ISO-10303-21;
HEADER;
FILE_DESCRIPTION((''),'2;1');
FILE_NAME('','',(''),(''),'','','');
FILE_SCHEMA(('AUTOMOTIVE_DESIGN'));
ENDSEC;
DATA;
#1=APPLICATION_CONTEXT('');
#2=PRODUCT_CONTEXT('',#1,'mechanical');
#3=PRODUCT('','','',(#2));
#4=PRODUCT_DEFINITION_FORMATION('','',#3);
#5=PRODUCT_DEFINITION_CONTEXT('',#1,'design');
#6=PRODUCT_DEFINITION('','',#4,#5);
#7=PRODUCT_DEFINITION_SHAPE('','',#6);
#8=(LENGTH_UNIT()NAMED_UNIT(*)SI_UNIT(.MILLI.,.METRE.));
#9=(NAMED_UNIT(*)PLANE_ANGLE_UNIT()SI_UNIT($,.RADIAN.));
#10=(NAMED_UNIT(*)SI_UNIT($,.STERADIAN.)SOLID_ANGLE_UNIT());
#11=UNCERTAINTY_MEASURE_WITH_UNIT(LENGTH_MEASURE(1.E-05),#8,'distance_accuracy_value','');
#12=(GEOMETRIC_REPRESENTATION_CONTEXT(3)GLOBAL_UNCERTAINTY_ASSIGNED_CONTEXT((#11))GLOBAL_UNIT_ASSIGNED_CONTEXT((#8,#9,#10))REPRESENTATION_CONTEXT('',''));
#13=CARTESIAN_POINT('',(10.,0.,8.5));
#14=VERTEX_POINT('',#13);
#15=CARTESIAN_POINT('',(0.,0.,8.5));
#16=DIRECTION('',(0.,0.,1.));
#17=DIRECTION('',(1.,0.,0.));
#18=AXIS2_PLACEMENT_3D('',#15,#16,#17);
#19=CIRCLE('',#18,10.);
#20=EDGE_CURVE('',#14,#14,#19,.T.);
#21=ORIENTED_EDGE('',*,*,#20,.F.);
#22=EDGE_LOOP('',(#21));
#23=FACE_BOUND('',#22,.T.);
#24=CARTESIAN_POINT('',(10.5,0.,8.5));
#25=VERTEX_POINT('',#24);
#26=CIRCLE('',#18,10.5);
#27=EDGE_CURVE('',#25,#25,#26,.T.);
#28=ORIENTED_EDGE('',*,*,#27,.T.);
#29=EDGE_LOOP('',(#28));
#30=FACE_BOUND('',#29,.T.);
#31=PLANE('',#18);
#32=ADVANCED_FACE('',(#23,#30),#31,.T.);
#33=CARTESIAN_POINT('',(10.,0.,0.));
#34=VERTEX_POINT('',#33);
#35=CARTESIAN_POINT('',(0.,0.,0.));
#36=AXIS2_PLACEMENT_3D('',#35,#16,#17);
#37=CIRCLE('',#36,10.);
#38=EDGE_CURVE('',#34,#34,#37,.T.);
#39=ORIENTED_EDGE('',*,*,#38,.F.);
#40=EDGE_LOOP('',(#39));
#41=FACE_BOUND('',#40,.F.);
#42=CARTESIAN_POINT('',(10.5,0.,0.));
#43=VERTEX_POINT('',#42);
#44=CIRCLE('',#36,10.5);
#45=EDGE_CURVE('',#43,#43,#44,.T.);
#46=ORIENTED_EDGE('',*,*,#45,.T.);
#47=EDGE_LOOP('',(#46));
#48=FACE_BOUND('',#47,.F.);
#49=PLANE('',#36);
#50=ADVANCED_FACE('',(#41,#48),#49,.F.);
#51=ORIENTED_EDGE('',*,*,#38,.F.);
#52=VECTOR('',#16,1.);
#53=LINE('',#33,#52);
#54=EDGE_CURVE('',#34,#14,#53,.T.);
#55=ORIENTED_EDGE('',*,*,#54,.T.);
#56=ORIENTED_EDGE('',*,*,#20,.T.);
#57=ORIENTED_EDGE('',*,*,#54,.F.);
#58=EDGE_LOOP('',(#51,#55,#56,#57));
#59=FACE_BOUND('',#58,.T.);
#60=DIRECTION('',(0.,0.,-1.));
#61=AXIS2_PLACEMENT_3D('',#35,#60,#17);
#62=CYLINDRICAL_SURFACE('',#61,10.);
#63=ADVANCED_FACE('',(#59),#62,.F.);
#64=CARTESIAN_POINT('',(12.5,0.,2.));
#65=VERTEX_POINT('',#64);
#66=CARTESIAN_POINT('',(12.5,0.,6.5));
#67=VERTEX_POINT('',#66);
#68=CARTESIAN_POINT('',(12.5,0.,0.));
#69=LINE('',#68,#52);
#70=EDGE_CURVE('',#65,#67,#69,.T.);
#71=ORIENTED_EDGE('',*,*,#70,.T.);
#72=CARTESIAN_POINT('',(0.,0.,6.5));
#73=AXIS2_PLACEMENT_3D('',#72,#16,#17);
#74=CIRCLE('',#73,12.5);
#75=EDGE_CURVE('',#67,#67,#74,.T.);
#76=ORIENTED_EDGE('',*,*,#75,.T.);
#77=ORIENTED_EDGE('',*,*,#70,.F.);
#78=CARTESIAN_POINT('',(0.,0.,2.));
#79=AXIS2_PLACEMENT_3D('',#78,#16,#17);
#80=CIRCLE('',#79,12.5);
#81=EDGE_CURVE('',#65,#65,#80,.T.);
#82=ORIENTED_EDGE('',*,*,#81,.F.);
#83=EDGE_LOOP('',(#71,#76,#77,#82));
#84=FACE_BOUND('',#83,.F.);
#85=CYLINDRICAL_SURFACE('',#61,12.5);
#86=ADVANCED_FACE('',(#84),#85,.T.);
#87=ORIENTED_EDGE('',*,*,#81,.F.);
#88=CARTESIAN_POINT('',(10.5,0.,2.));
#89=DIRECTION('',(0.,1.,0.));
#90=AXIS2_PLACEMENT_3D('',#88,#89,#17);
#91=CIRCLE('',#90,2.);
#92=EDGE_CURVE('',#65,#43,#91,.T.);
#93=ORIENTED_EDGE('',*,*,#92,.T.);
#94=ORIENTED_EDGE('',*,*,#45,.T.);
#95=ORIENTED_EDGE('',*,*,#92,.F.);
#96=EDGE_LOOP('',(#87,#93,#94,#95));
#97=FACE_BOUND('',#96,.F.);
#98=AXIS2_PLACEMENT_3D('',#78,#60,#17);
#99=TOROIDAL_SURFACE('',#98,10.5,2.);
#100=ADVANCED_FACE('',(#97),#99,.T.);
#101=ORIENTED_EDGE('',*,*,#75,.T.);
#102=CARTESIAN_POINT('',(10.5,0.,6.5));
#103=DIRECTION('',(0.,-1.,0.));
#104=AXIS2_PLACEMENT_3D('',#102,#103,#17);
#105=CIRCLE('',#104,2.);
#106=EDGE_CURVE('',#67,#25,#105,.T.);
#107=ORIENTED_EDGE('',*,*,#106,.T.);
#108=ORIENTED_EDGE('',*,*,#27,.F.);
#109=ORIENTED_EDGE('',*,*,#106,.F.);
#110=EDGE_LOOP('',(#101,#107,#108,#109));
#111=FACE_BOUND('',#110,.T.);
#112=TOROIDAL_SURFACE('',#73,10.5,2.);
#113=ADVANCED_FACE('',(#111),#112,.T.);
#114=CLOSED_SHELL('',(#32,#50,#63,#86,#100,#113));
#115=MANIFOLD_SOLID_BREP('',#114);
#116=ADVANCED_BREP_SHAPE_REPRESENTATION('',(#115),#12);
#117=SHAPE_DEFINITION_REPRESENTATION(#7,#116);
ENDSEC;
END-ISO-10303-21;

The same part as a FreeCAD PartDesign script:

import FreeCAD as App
import Part
import Sketcher

V = App.Vector
Q = App.Units.Quantity


def edges_at(feature, points):
    """Names of the edges that pass closest to the given points."""
    edges = feature.Shape.Edges
    near = lambda p: min(range(len(edges)), key=lambda i: edges[i].distToShape(Part.Vertex(*p))[0])
    return sorted({f"Edge{near(p) + 1}" for p in points})

doc = App.newDocument("Part")
body = doc.addObject("PartDesign::Body", "Body")

# Sketch on XY plane
sketch1 = body.newObject("Sketcher::SketchObject", "Sketch")
sketch1.AttachmentSupport = (doc.getObject("XY_Plane"), [""])
sketch1.MapMode = "FlatFace"
sketch1.addGeometry(Part.Circle(V(0, 0, 0), V(0, 0, 1), 12), False)
sketch1.addGeometry(Part.Circle(V(0, 0, 0), V(0, 0, 1), 10), False)
sketch1.addConstraint(Sketcher.Constraint("Coincident", 0, 3, -1, 1))
sketch1.addConstraint(Sketcher.Constraint("Coincident", 1, 3, -1, 1))
sketch1.addConstraint(Sketcher.Constraint("Diameter", 0, Q("25 mm")))
sketch1.addConstraint(Sketcher.Constraint("Diameter", 1, Q("20 mm")))
pad1 = body.newObject("PartDesign::Pad", "Pad")
pad1.Profile = sketch1
pad1.Length = 8.5
doc.recompute()

fillet = body.newObject("PartDesign::Fillet", "Fillet")
fillet.Base = (pad1, edges_at(pad1, [(-12.5, 0, 8.5), (-12.5, 0, 0)]))
fillet.Radius = 2

doc.recompute()
